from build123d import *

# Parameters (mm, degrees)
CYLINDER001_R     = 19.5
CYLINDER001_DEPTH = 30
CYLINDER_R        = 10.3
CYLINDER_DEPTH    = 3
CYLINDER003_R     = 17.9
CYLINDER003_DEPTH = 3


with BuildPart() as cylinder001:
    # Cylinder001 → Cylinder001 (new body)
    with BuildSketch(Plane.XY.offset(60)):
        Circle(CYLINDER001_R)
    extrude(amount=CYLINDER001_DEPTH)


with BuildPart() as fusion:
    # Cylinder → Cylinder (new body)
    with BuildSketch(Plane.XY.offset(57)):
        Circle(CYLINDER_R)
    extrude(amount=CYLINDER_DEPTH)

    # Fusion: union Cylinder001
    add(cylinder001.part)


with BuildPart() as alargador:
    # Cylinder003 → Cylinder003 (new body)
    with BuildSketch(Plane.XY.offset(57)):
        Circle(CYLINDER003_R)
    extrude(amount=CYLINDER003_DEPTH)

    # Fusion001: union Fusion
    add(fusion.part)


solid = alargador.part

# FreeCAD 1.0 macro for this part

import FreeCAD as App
import Part
import Sketcher
from FreeCAD import Vector
Q = App.Units.Quantity

doc = App.newDocument("Part")
body = doc.addObject("PartDesign::Body", "Body")

sketch1 = body.newObject("Sketcher::SketchObject", "Sketch")
sketch1.AttachmentSupport = (doc.getObject("XY_Plane"), [""])
sketch1.MapMode = "FlatFace"
sketch1.AttachmentOffset = App.Placement(Vector(0, 0, 60), App.Rotation())
sketch1.addGeometry(Part.Circle(Vector(0, 0, 0), Vector(0, 0, 1), 19.5), False)
sketch1.addConstraint([
    Sketcher.Constraint("Coincident", 0, 3, -1, 1),
    Sketcher.Constraint("Diameter", 0, Q("39 mm")),
])
pad1 = body.newObject("PartDesign::Pad", "Pad")
pad1.Profile = sketch1
pad1.Length = 30
body2 = doc.addObject("PartDesign::Body", "Body001")

sketch2 = body2.newObject("Sketcher::SketchObject", "Sketch001")
sketch2.AttachmentSupport = (doc.getObject("XY_Plane001"), [""])
sketch2.MapMode = "FlatFace"
sketch2.AttachmentOffset = App.Placement(Vector(0, 0, 57), App.Rotation())
sketch2.addGeometry(Part.Circle(Vector(0, 0, 0), Vector(0, 0, 1), 10.3), False)
sketch2.addConstraint([
    Sketcher.Constraint("Coincident", 0, 3, -1, 1),
    Sketcher.Constraint("Diameter", 0, Q("20.6 mm")),
])
pad2 = body2.newObject("PartDesign::Pad", "Pad001")
pad2.Profile = sketch2
pad2.Length = 3
doc.recompute()

boolean = body2.newObject("PartDesign::Boolean", "Boolean")
boolean.Type = "Fuse"
boolean.addObjects([body])
body3 = doc.addObject("PartDesign::Body", "Body002")

sketch3 = body3.newObject("Sketcher::SketchObject", "Sketch002")
sketch3.AttachmentSupport = (doc.getObject("XY_Plane002"), [""])
sketch3.MapMode = "FlatFace"
sketch3.AttachmentOffset = App.Placement(Vector(0, 0, 57), App.Rotation())
sketch3.addGeometry(Part.Circle(Vector(0, 0, 0), Vector(0, 0, 1), 17.9), False)
sketch3.addConstraint([
    Sketcher.Constraint("Coincident", 0, 3, -1, 1),
    Sketcher.Constraint("Diameter", 0, Q("35.8 mm")),
])
pad3 = body3.newObject("PartDesign::Pad", "Pad002")
pad3.Profile = sketch3
pad3.Length = 3
doc.recompute()

boolean2 = body3.newObject("PartDesign::Boolean", "Boolean001")
boolean2.Type = "Fuse"
boolean2.addObjects([body2])

doc.recompute()
